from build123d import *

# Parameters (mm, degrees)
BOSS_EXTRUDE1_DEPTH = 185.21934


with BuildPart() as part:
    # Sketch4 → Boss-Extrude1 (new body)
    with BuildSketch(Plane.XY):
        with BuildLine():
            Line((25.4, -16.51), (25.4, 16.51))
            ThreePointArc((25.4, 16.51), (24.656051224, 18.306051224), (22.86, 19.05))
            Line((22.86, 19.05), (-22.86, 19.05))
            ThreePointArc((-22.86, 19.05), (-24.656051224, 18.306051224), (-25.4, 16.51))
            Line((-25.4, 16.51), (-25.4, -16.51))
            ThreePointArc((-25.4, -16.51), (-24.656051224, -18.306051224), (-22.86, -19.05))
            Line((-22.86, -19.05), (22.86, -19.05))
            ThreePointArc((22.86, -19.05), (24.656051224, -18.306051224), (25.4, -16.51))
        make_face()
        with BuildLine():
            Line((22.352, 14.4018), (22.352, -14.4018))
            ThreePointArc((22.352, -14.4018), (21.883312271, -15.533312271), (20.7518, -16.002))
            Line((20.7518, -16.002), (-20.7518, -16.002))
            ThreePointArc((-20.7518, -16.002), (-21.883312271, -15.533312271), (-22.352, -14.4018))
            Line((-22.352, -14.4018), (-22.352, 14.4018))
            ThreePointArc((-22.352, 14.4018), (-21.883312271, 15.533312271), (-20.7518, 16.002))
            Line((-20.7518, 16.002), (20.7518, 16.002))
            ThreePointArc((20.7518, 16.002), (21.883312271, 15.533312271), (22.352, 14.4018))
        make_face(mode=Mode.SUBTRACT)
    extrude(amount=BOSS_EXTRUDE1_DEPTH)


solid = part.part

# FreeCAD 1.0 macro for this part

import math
import FreeCAD as App
import Part
import Sketcher
Q = App.Units.Quantity

doc = App.newDocument("Part")
body = doc.addObject("PartDesign::Body", "Body")

sketch1 = body.newObject("Sketcher::SketchObject", "Sketch")
sketch1.AttachmentSupport = (doc.getObject("XY_Plane"), [""])
sketch1.MapMode = "FlatFace"
sketch1.addGeometry(Part.LineSegment(App.Vector(25.4, -16.5, 0), App.Vector(25.4, 16.5, 0)), False)
sketch1.addGeometry(Part.ArcOfCircle(Part.Circle(App.Vector(22.9, 16.5, 0), App.Vector(0, 0, 1), 2.5), math.radians(0), math.radians(90)), False)
sketch1.addGeometry(Part.LineSegment(App.Vector(22.9, 19.1, 0), App.Vector(-22.9, 19.1, 0)), False)
sketch1.addGeometry(Part.ArcOfCircle(Part.Circle(App.Vector(-22.9, 16.5, 0), App.Vector(0, 0, 1), 2.5), math.radians(90), math.radians(180)), False)
sketch1.addGeometry(Part.LineSegment(App.Vector(-25.4, 16.5, 0), App.Vector(-25.4, -16.5, 0)), False)
sketch1.addGeometry(Part.ArcOfCircle(Part.Circle(App.Vector(-22.9, -16.5, 0), App.Vector(0, 0, 1), 2.5), math.radians(-180), math.radians(-90)), False)
sketch1.addGeometry(Part.LineSegment(App.Vector(-22.9, -19.1, 0), App.Vector(22.9, -19.1, 0)), False)
sketch1.addGeometry(Part.ArcOfCircle(Part.Circle(App.Vector(22.9, -16.5, 0), App.Vector(0, 0, 1), 2.5), math.radians(-90), math.radians(0)), False)
sketch1.addGeometry(Part.ArcOfCircle(Part.Circle(App.Vector(20.8, 14.4, 0), App.Vector(0, 0, 1), 1.6), math.radians(0), math.radians(90)), False)
sketch1.addGeometry(Part.LineSegment(App.Vector(22.4, 14.4, 0), App.Vector(22.4, -14.4, 0)), False)
sketch1.addGeometry(Part.ArcOfCircle(Part.Circle(App.Vector(20.8, -14.4, 0), App.Vector(0, 0, 1), 1.6), math.radians(-90), math.radians(0)), False)
sketch1.addGeometry(Part.LineSegment(App.Vector(20.8, -16, 0), App.Vector(-20.8, -16, 0)), False)
sketch1.addGeometry(Part.ArcOfCircle(Part.Circle(App.Vector(-20.8, -14.4, 0), App.Vector(0, 0, 1), 1.6), math.radians(-180), math.radians(-90)), False)
sketch1.addGeometry(Part.LineSegment(App.Vector(-22.4, -14.4, 0), App.Vector(-22.4, 14.4, 0)), False)
sketch1.addGeometry(Part.ArcOfCircle(Part.Circle(App.Vector(-20.8, 14.4, 0), App.Vector(0, 0, 1), 1.6), math.radians(90), math.radians(180)), False)
sketch1.addGeometry(Part.LineSegment(App.Vector(-20.8, 16, 0), App.Vector(20.8, 16, 0)), False)
sketch1.addConstraint(Sketcher.Constraint("Tangent", 0, 2, 1, 1))
sketch1.addConstraint(Sketcher.Constraint("Tangent", 1, 2, 2, 1))
sketch1.addConstraint(Sketcher.Constraint("Tangent", 2, 2, 3, 1))
sketch1.addConstraint(Sketcher.Constraint("Tangent", 3, 2, 4, 1))
sketch1.addConstraint(Sketcher.Constraint("Tangent", 4, 2, 5, 1))
sketch1.addConstraint(Sketcher.Constraint("Tangent", 5, 2, 6, 1))
sketch1.addConstraint(Sketcher.Constraint("Tangent", 6, 2, 7, 1))
sketch1.addConstraint(Sketcher.Constraint("Tangent", 7, 2, 0, 1))
sketch1.addConstraint(Sketcher.Constraint("Tangent", 8, 1, 9, 1))
sketch1.addConstraint(Sketcher.Constraint("Tangent", 9, 2, 10, 2))
sketch1.addConstraint(Sketcher.Constraint("Tangent", 10, 1, 11, 1))
sketch1.addConstraint(Sketcher.Constraint("Tangent", 11, 2, 12, 2))
sketch1.addConstraint(Sketcher.Constraint("Tangent", 12, 1, 13, 1))
sketch1.addConstraint(Sketcher.Constraint("Tangent", 13, 2, 14, 2))
sketch1.addConstraint(Sketcher.Constraint("Tangent", 14, 1, 15, 1))
sketch1.addConstraint(Sketcher.Constraint("Tangent", 15, 2, 8, 2))
sketch1.addConstraint(Sketcher.Constraint("Vertical", 0))
sketch1.addConstraint(Sketcher.Constraint("Horizontal", 2))
sketch1.addConstraint(Sketcher.Constraint("Vertical", 4))
sketch1.addConstraint(Sketcher.Constraint("Horizontal", 6))
sketch1.addConstraint(Sketcher.Constraint("Vertical", 9))
sketch1.addConstraint(Sketcher.Constraint("Horizontal", 11))
sketch1.addConstraint(Sketcher.Constraint("Vertical", 13))
sketch1.addConstraint(Sketcher.Constraint("Horizontal", 15))
sketch1.addConstraint(Sketcher.Constraint("Equal", 1, 3))
sketch1.addConstraint(Sketcher.Constraint("Equal", 3, 5))
sketch1.addConstraint(Sketcher.Constraint("Equal", 5, 7))
sketch1.addConstraint(Sketcher.Constraint("Equal", 8, 10))
sketch1.addConstraint(Sketcher.Constraint("Equal", 10, 12))
sketch1.addConstraint(Sketcher.Constraint("Equal", 12, 14))
sketch1.addConstraint(Sketcher.Constraint("Symmetric", 1, 3, 5, 3, -1, 1))
sketch1.addConstraint(Sketcher.Constraint("Symmetric", 8, 3, 12, 3, -1, 1))
sketch1.addConstraint(Sketcher.Constraint("Radius", 1, Q("0.1 in")))
sketch1.addConstraint(Sketcher.Constraint("DistanceX", 2, 2, 2, 1, Q("1.8 in")))
sketch1.addConstraint(Sketcher.Constraint("DistanceY", 0, 1, 0, 2, Q("1.3 in")))
sketch1.addConstraint(Sketcher.Constraint("Radius", 8, Q("0.063 in")))
sketch1.addConstraint(Sketcher.Constraint("DistanceX", 11, 2, 11, 1, Q("1.634 in")))
sketch1.addConstraint(Sketcher.Constraint("DistanceY", 9, 2, 9, 1, Q("1.134 in")))
pad1 = body.newObject("PartDesign::Pad", "Pad")
pad1.Profile = sketch1
pad1.Length = Q("7.2921 in")

doc.recompute()
